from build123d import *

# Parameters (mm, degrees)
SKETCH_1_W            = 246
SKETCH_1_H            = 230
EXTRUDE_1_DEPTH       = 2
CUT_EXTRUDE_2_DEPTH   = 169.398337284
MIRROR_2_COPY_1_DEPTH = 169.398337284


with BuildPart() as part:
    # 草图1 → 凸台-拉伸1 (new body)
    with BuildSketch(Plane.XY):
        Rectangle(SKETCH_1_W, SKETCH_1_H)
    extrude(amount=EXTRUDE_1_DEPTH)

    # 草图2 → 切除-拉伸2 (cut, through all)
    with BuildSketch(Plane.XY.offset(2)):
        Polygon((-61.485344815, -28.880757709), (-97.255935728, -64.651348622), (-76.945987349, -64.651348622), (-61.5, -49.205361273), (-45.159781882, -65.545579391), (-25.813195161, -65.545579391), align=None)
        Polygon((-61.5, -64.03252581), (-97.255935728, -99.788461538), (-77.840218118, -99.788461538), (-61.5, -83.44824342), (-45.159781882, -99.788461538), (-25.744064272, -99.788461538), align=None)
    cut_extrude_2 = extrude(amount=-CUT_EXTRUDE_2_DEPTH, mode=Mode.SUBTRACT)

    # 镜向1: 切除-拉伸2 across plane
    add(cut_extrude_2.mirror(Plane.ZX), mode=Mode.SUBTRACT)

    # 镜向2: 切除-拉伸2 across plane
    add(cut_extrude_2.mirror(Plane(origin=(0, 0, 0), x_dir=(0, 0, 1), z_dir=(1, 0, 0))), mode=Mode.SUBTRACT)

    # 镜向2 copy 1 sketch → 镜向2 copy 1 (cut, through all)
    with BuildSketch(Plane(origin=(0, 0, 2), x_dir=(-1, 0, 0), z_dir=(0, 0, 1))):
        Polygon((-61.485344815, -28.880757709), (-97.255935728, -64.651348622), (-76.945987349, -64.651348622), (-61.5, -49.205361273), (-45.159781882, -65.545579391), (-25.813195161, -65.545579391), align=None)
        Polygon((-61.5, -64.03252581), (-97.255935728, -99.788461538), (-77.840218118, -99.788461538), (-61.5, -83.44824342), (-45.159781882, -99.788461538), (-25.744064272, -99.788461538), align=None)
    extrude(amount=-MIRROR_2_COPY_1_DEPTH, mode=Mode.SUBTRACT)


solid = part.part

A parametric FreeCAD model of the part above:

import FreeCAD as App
import Part
import Sketcher
from FreeCAD import Vector


def add_polygon(sketch, points):
    """Adds a closed chain of lines whose ends are joined by coincident constraints."""
    first, n = sketch.GeometryCount, len(points)
    for a, b in zip(points, points[1:] + points[:1]):
        sketch.addGeometry(Part.LineSegment(App.Vector(*a, 0), App.Vector(*b, 0)), False)
    for i in range(n):
        sketch.addConstraint(Sketcher.Constraint("Coincident", first + i, 2, first + (i + 1) % n, 1))

doc = App.newDocument("Part")
params = doc.addObject("Spreadsheet::Sheet", "Params")
for row, (alias, value) in enumerate([
    ("sketch1_width", "246 mm"),
    ("sketch1_height", "230 mm"),
    ("pad1_length", "2 mm"),
], start=1):
    params.set(f"A{row}", alias)
    params.set(f"B{row}", "=" + value)
    params.setAlias(f"B{row}", alias)

body = doc.addObject("PartDesign::Body", "Body")

# Sketch on XY plane
sketch1 = doc.addObject("Sketcher::SketchObject", "Sketch")
body.addObject(sketch1)
sketch1.AttachmentSupport = (doc.XY_Plane, [""])
sketch1.MapMode = "FlatFace"
add_polygon(sketch1, [(-123, 115), (-123, -115), (123, -115), (123, 115)])  # lines 0-3
sketch1.addConstraint(Sketcher.Constraint("Vertical", 0))
sketch1.addConstraint(Sketcher.Constraint("Horizontal", 1))
sketch1.addConstraint(Sketcher.Constraint("Vertical", 2))
sketch1.addConstraint(Sketcher.Constraint("Horizontal", 3))
sketch1.addConstraint(Sketcher.Constraint("Symmetric", 0, 2, 2, 2, -1, 1))
sketch1.addConstraint(Sketcher.Constraint("DistanceX", 1, 1, 1, 2, 246.0))
sketch1.addConstraint(Sketcher.Constraint("DistanceY", 0, 2, 0, 1, 230.0))
sketch1.setExpression("Constraints[9]", "Params.sketch1_width")
sketch1.setExpression("Constraints[10]", "Params.sketch1_height")
pad1 = doc.addObject("PartDesign::Pad", "Pad")
body.addObject(pad1)
pad1.Profile = sketch1
pad1.setExpression("Length", "Params.pad1_length")

# Sketch on XY plane
sketch2 = doc.addObject("Sketcher::SketchObject", "Sketch001")
body.addObject(sketch2)
sketch2.AttachmentSupport = (doc.XY_Plane, [""])
sketch2.MapMode = "FlatFace"
sketch2.AttachmentOffset = App.Placement(Vector(0, 0, 2), App.Rotation())
add_polygon(sketch2, [(-61, -29), (-97, -65), (-77, -65), (-62, -49), (-45, -66), (-26, -66)])  # lines 0-5
add_polygon(sketch2, [(-62, -64), (-97, -100), (-78, -100), (-62, -83), (-45, -100), (-26, -100)])  # lines 6-11
sketch2.addConstraint(Sketcher.Constraint("Horizontal", 1))
sketch2.addConstraint(Sketcher.Constraint("Horizontal", 4))
sketch2.addConstraint(Sketcher.Constraint("Horizontal", 7))
sketch2.addConstraint(Sketcher.Constraint("Horizontal", 10))
sketch2.addConstraint(Sketcher.Constraint("Parallel", 0, 2))
sketch2.addConstraint(Sketcher.Constraint("Perpendicular", 2, 3))
sketch2.addConstraint(Sketcher.Constraint("Perpendicular", 3, 6))
sketch2.addConstraint(Sketcher.Constraint("Parallel", 6, 8))
sketch2.addConstraint(Sketcher.Constraint("Perpendicular", 8, 9))
sketch2.addConstraint(Sketcher.Constraint("Parallel", 9, 11))
sketch2.addConstraint(Sketcher.Constraint("Horizontal", 7, 2, 9, 2))
sketch2.addConstraint(Sketcher.Constraint("Vertical", 0, 2, 6, 2))
sketch2.addConstraint(Sketcher.Constraint("Vertical", 2, 2, 8, 2))
sketch2.addConstraint(Sketcher.Constraint("Vertical", 3, 2, 9, 2))
sketch2.addConstraint(Sketcher.Constraint("Vertical", 8, 2, 11, 2))
sketch2.addConstraint(Sketcher.Constraint("Equal", 7, 10))
sketch2.addConstraint(Sketcher.Constraint("DistanceX", 2, 2, -1, 1, 61.5))
sketch2.addConstraint(Sketcher.Constraint("DistanceX", 1, 1, 1, 2, 20.309948))
sketch2.addConstraint(Sketcher.Constraint("DistanceY", 6, 2, 2, 2, 50.5831))
sketch2.addConstraint(Sketcher.Constraint("Distance", 3, 23.108558))
sketch2.addConstraint(Sketcher.Constraint("Distance", 5, 51.154779))
sketch2.addConstraint(Sketcher.Constraint("Distance", 6, 50.566529))
sketch2.addConstraint(Sketcher.Constraint("DistanceX", 4, 1, 4, 2, 19.346587))
sketch2.addConstraint(Sketcher.Constraint("DistanceY", 0, 2, -1, 1, 64.651349))
pocket1 = doc.addObject("PartDesign::Pocket", "Pocket")
body.addObject(pocket1)
pocket1.Profile = sketch2
pocket1.Type = "ThroughAll"
doc.recompute()

mirrored = doc.addObject("PartDesign::Mirrored", "Mirrored")
body.addObject(mirrored)
mirrored.Originals = [pocket1]
mirrored.MirrorPlane = (doc.XZ_Plane, [""])
body.Tip = mirrored
doc.recompute()

mirrored2 = doc.addObject("PartDesign::Mirrored", "Mirrored001")
body.addObject(mirrored2)
mirrored2.Originals = [pocket1]
mirrored2.MirrorPlane = (doc.YZ_Plane, [""])
body.Tip = mirrored2

# Sketch on XY plane
sketch3 = doc.addObject("Sketcher::SketchObject", "Sketch002")
body.addObject(sketch3)
sketch3.AttachmentSupport = (doc.XY_Plane, [""])
sketch3.MapMode = "FlatFace"
sketch3.AttachmentOffset = App.Placement(Vector(0, 0, 2), App.Rotation())
add_polygon(sketch3, [(61, 29), (97, 65), (77, 65), (62, 49), (45, 66), (26, 66)])  # lines 0-5
add_polygon(sketch3, [(62, 64), (97, 100), (78, 100), (62, 83), (45, 100), (26, 100)])  # lines 6-11
sketch3.addConstraint(Sketcher.Constraint("Horizontal", 1))
sketch3.addConstraint(Sketcher.Constraint("Horizontal", 4))
sketch3.addConstraint(Sketcher.Constraint("Horizontal", 7))
sketch3.addConstraint(Sketcher.Constraint("Horizontal", 10))
sketch3.addConstraint(Sketcher.Constraint("Parallel", 0, 2))
sketch3.addConstraint(Sketcher.Constraint("Perpendicular", 2, 3))
sketch3.addConstraint(Sketcher.Constraint("Perpendicular", 3, 6))
sketch3.addConstraint(Sketcher.Constraint("Parallel", 6, 8))
sketch3.addConstraint(Sketcher.Constraint("Perpendicular", 8, 9))
sketch3.addConstraint(Sketcher.Constraint("Parallel", 9, 11))
sketch3.addConstraint(Sketcher.Constraint("Horizontal", 7, 2, 9, 2))
sketch3.addConstraint(Sketcher.Constraint("Vertical", 0, 2, 6, 2))
sketch3.addConstraint(Sketcher.Constraint("Vertical", 2, 2, 8, 2))
sketch3.addConstraint(Sketcher.Constraint("Vertical", 3, 2, 9, 2))
sketch3.addConstraint(Sketcher.Constraint("Vertical", 8, 2, 11, 2))
sketch3.addConstraint(Sketcher.Constraint("Equal", 7, 10))
sketch3.addConstraint(Sketcher.Constraint("DistanceX", -1, 1, 2, 2, 61.5))
sketch3.addConstraint(Sketcher.Constraint("DistanceX", 1, 2, 1, 1, 20.309948))
sketch3.addConstraint(Sketcher.Constraint("DistanceY", 2, 2, 6, 2, 50.5831))
sketch3.addConstraint(Sketcher.Constraint("Distance", 3, 23.108558))
sketch3.addConstraint(Sketcher.Constraint("Distance", 5, 51.154779))
sketch3.addConstraint(Sketcher.Constraint("Distance", 6, 50.566529))
sketch3.addConstraint(Sketcher.Constraint("DistanceX", 4, 2, 4, 1, 19.346587))
sketch3.addConstraint(Sketcher.Constraint("DistanceY", -1, 1, 0, 2, 64.651349))
pocket2 = doc.addObject("PartDesign::Pocket", "Pocket001")
body.addObject(pocket2)
pocket2.Profile = sketch3
pocket2.Type = "ThroughAll"

doc.recompute()
